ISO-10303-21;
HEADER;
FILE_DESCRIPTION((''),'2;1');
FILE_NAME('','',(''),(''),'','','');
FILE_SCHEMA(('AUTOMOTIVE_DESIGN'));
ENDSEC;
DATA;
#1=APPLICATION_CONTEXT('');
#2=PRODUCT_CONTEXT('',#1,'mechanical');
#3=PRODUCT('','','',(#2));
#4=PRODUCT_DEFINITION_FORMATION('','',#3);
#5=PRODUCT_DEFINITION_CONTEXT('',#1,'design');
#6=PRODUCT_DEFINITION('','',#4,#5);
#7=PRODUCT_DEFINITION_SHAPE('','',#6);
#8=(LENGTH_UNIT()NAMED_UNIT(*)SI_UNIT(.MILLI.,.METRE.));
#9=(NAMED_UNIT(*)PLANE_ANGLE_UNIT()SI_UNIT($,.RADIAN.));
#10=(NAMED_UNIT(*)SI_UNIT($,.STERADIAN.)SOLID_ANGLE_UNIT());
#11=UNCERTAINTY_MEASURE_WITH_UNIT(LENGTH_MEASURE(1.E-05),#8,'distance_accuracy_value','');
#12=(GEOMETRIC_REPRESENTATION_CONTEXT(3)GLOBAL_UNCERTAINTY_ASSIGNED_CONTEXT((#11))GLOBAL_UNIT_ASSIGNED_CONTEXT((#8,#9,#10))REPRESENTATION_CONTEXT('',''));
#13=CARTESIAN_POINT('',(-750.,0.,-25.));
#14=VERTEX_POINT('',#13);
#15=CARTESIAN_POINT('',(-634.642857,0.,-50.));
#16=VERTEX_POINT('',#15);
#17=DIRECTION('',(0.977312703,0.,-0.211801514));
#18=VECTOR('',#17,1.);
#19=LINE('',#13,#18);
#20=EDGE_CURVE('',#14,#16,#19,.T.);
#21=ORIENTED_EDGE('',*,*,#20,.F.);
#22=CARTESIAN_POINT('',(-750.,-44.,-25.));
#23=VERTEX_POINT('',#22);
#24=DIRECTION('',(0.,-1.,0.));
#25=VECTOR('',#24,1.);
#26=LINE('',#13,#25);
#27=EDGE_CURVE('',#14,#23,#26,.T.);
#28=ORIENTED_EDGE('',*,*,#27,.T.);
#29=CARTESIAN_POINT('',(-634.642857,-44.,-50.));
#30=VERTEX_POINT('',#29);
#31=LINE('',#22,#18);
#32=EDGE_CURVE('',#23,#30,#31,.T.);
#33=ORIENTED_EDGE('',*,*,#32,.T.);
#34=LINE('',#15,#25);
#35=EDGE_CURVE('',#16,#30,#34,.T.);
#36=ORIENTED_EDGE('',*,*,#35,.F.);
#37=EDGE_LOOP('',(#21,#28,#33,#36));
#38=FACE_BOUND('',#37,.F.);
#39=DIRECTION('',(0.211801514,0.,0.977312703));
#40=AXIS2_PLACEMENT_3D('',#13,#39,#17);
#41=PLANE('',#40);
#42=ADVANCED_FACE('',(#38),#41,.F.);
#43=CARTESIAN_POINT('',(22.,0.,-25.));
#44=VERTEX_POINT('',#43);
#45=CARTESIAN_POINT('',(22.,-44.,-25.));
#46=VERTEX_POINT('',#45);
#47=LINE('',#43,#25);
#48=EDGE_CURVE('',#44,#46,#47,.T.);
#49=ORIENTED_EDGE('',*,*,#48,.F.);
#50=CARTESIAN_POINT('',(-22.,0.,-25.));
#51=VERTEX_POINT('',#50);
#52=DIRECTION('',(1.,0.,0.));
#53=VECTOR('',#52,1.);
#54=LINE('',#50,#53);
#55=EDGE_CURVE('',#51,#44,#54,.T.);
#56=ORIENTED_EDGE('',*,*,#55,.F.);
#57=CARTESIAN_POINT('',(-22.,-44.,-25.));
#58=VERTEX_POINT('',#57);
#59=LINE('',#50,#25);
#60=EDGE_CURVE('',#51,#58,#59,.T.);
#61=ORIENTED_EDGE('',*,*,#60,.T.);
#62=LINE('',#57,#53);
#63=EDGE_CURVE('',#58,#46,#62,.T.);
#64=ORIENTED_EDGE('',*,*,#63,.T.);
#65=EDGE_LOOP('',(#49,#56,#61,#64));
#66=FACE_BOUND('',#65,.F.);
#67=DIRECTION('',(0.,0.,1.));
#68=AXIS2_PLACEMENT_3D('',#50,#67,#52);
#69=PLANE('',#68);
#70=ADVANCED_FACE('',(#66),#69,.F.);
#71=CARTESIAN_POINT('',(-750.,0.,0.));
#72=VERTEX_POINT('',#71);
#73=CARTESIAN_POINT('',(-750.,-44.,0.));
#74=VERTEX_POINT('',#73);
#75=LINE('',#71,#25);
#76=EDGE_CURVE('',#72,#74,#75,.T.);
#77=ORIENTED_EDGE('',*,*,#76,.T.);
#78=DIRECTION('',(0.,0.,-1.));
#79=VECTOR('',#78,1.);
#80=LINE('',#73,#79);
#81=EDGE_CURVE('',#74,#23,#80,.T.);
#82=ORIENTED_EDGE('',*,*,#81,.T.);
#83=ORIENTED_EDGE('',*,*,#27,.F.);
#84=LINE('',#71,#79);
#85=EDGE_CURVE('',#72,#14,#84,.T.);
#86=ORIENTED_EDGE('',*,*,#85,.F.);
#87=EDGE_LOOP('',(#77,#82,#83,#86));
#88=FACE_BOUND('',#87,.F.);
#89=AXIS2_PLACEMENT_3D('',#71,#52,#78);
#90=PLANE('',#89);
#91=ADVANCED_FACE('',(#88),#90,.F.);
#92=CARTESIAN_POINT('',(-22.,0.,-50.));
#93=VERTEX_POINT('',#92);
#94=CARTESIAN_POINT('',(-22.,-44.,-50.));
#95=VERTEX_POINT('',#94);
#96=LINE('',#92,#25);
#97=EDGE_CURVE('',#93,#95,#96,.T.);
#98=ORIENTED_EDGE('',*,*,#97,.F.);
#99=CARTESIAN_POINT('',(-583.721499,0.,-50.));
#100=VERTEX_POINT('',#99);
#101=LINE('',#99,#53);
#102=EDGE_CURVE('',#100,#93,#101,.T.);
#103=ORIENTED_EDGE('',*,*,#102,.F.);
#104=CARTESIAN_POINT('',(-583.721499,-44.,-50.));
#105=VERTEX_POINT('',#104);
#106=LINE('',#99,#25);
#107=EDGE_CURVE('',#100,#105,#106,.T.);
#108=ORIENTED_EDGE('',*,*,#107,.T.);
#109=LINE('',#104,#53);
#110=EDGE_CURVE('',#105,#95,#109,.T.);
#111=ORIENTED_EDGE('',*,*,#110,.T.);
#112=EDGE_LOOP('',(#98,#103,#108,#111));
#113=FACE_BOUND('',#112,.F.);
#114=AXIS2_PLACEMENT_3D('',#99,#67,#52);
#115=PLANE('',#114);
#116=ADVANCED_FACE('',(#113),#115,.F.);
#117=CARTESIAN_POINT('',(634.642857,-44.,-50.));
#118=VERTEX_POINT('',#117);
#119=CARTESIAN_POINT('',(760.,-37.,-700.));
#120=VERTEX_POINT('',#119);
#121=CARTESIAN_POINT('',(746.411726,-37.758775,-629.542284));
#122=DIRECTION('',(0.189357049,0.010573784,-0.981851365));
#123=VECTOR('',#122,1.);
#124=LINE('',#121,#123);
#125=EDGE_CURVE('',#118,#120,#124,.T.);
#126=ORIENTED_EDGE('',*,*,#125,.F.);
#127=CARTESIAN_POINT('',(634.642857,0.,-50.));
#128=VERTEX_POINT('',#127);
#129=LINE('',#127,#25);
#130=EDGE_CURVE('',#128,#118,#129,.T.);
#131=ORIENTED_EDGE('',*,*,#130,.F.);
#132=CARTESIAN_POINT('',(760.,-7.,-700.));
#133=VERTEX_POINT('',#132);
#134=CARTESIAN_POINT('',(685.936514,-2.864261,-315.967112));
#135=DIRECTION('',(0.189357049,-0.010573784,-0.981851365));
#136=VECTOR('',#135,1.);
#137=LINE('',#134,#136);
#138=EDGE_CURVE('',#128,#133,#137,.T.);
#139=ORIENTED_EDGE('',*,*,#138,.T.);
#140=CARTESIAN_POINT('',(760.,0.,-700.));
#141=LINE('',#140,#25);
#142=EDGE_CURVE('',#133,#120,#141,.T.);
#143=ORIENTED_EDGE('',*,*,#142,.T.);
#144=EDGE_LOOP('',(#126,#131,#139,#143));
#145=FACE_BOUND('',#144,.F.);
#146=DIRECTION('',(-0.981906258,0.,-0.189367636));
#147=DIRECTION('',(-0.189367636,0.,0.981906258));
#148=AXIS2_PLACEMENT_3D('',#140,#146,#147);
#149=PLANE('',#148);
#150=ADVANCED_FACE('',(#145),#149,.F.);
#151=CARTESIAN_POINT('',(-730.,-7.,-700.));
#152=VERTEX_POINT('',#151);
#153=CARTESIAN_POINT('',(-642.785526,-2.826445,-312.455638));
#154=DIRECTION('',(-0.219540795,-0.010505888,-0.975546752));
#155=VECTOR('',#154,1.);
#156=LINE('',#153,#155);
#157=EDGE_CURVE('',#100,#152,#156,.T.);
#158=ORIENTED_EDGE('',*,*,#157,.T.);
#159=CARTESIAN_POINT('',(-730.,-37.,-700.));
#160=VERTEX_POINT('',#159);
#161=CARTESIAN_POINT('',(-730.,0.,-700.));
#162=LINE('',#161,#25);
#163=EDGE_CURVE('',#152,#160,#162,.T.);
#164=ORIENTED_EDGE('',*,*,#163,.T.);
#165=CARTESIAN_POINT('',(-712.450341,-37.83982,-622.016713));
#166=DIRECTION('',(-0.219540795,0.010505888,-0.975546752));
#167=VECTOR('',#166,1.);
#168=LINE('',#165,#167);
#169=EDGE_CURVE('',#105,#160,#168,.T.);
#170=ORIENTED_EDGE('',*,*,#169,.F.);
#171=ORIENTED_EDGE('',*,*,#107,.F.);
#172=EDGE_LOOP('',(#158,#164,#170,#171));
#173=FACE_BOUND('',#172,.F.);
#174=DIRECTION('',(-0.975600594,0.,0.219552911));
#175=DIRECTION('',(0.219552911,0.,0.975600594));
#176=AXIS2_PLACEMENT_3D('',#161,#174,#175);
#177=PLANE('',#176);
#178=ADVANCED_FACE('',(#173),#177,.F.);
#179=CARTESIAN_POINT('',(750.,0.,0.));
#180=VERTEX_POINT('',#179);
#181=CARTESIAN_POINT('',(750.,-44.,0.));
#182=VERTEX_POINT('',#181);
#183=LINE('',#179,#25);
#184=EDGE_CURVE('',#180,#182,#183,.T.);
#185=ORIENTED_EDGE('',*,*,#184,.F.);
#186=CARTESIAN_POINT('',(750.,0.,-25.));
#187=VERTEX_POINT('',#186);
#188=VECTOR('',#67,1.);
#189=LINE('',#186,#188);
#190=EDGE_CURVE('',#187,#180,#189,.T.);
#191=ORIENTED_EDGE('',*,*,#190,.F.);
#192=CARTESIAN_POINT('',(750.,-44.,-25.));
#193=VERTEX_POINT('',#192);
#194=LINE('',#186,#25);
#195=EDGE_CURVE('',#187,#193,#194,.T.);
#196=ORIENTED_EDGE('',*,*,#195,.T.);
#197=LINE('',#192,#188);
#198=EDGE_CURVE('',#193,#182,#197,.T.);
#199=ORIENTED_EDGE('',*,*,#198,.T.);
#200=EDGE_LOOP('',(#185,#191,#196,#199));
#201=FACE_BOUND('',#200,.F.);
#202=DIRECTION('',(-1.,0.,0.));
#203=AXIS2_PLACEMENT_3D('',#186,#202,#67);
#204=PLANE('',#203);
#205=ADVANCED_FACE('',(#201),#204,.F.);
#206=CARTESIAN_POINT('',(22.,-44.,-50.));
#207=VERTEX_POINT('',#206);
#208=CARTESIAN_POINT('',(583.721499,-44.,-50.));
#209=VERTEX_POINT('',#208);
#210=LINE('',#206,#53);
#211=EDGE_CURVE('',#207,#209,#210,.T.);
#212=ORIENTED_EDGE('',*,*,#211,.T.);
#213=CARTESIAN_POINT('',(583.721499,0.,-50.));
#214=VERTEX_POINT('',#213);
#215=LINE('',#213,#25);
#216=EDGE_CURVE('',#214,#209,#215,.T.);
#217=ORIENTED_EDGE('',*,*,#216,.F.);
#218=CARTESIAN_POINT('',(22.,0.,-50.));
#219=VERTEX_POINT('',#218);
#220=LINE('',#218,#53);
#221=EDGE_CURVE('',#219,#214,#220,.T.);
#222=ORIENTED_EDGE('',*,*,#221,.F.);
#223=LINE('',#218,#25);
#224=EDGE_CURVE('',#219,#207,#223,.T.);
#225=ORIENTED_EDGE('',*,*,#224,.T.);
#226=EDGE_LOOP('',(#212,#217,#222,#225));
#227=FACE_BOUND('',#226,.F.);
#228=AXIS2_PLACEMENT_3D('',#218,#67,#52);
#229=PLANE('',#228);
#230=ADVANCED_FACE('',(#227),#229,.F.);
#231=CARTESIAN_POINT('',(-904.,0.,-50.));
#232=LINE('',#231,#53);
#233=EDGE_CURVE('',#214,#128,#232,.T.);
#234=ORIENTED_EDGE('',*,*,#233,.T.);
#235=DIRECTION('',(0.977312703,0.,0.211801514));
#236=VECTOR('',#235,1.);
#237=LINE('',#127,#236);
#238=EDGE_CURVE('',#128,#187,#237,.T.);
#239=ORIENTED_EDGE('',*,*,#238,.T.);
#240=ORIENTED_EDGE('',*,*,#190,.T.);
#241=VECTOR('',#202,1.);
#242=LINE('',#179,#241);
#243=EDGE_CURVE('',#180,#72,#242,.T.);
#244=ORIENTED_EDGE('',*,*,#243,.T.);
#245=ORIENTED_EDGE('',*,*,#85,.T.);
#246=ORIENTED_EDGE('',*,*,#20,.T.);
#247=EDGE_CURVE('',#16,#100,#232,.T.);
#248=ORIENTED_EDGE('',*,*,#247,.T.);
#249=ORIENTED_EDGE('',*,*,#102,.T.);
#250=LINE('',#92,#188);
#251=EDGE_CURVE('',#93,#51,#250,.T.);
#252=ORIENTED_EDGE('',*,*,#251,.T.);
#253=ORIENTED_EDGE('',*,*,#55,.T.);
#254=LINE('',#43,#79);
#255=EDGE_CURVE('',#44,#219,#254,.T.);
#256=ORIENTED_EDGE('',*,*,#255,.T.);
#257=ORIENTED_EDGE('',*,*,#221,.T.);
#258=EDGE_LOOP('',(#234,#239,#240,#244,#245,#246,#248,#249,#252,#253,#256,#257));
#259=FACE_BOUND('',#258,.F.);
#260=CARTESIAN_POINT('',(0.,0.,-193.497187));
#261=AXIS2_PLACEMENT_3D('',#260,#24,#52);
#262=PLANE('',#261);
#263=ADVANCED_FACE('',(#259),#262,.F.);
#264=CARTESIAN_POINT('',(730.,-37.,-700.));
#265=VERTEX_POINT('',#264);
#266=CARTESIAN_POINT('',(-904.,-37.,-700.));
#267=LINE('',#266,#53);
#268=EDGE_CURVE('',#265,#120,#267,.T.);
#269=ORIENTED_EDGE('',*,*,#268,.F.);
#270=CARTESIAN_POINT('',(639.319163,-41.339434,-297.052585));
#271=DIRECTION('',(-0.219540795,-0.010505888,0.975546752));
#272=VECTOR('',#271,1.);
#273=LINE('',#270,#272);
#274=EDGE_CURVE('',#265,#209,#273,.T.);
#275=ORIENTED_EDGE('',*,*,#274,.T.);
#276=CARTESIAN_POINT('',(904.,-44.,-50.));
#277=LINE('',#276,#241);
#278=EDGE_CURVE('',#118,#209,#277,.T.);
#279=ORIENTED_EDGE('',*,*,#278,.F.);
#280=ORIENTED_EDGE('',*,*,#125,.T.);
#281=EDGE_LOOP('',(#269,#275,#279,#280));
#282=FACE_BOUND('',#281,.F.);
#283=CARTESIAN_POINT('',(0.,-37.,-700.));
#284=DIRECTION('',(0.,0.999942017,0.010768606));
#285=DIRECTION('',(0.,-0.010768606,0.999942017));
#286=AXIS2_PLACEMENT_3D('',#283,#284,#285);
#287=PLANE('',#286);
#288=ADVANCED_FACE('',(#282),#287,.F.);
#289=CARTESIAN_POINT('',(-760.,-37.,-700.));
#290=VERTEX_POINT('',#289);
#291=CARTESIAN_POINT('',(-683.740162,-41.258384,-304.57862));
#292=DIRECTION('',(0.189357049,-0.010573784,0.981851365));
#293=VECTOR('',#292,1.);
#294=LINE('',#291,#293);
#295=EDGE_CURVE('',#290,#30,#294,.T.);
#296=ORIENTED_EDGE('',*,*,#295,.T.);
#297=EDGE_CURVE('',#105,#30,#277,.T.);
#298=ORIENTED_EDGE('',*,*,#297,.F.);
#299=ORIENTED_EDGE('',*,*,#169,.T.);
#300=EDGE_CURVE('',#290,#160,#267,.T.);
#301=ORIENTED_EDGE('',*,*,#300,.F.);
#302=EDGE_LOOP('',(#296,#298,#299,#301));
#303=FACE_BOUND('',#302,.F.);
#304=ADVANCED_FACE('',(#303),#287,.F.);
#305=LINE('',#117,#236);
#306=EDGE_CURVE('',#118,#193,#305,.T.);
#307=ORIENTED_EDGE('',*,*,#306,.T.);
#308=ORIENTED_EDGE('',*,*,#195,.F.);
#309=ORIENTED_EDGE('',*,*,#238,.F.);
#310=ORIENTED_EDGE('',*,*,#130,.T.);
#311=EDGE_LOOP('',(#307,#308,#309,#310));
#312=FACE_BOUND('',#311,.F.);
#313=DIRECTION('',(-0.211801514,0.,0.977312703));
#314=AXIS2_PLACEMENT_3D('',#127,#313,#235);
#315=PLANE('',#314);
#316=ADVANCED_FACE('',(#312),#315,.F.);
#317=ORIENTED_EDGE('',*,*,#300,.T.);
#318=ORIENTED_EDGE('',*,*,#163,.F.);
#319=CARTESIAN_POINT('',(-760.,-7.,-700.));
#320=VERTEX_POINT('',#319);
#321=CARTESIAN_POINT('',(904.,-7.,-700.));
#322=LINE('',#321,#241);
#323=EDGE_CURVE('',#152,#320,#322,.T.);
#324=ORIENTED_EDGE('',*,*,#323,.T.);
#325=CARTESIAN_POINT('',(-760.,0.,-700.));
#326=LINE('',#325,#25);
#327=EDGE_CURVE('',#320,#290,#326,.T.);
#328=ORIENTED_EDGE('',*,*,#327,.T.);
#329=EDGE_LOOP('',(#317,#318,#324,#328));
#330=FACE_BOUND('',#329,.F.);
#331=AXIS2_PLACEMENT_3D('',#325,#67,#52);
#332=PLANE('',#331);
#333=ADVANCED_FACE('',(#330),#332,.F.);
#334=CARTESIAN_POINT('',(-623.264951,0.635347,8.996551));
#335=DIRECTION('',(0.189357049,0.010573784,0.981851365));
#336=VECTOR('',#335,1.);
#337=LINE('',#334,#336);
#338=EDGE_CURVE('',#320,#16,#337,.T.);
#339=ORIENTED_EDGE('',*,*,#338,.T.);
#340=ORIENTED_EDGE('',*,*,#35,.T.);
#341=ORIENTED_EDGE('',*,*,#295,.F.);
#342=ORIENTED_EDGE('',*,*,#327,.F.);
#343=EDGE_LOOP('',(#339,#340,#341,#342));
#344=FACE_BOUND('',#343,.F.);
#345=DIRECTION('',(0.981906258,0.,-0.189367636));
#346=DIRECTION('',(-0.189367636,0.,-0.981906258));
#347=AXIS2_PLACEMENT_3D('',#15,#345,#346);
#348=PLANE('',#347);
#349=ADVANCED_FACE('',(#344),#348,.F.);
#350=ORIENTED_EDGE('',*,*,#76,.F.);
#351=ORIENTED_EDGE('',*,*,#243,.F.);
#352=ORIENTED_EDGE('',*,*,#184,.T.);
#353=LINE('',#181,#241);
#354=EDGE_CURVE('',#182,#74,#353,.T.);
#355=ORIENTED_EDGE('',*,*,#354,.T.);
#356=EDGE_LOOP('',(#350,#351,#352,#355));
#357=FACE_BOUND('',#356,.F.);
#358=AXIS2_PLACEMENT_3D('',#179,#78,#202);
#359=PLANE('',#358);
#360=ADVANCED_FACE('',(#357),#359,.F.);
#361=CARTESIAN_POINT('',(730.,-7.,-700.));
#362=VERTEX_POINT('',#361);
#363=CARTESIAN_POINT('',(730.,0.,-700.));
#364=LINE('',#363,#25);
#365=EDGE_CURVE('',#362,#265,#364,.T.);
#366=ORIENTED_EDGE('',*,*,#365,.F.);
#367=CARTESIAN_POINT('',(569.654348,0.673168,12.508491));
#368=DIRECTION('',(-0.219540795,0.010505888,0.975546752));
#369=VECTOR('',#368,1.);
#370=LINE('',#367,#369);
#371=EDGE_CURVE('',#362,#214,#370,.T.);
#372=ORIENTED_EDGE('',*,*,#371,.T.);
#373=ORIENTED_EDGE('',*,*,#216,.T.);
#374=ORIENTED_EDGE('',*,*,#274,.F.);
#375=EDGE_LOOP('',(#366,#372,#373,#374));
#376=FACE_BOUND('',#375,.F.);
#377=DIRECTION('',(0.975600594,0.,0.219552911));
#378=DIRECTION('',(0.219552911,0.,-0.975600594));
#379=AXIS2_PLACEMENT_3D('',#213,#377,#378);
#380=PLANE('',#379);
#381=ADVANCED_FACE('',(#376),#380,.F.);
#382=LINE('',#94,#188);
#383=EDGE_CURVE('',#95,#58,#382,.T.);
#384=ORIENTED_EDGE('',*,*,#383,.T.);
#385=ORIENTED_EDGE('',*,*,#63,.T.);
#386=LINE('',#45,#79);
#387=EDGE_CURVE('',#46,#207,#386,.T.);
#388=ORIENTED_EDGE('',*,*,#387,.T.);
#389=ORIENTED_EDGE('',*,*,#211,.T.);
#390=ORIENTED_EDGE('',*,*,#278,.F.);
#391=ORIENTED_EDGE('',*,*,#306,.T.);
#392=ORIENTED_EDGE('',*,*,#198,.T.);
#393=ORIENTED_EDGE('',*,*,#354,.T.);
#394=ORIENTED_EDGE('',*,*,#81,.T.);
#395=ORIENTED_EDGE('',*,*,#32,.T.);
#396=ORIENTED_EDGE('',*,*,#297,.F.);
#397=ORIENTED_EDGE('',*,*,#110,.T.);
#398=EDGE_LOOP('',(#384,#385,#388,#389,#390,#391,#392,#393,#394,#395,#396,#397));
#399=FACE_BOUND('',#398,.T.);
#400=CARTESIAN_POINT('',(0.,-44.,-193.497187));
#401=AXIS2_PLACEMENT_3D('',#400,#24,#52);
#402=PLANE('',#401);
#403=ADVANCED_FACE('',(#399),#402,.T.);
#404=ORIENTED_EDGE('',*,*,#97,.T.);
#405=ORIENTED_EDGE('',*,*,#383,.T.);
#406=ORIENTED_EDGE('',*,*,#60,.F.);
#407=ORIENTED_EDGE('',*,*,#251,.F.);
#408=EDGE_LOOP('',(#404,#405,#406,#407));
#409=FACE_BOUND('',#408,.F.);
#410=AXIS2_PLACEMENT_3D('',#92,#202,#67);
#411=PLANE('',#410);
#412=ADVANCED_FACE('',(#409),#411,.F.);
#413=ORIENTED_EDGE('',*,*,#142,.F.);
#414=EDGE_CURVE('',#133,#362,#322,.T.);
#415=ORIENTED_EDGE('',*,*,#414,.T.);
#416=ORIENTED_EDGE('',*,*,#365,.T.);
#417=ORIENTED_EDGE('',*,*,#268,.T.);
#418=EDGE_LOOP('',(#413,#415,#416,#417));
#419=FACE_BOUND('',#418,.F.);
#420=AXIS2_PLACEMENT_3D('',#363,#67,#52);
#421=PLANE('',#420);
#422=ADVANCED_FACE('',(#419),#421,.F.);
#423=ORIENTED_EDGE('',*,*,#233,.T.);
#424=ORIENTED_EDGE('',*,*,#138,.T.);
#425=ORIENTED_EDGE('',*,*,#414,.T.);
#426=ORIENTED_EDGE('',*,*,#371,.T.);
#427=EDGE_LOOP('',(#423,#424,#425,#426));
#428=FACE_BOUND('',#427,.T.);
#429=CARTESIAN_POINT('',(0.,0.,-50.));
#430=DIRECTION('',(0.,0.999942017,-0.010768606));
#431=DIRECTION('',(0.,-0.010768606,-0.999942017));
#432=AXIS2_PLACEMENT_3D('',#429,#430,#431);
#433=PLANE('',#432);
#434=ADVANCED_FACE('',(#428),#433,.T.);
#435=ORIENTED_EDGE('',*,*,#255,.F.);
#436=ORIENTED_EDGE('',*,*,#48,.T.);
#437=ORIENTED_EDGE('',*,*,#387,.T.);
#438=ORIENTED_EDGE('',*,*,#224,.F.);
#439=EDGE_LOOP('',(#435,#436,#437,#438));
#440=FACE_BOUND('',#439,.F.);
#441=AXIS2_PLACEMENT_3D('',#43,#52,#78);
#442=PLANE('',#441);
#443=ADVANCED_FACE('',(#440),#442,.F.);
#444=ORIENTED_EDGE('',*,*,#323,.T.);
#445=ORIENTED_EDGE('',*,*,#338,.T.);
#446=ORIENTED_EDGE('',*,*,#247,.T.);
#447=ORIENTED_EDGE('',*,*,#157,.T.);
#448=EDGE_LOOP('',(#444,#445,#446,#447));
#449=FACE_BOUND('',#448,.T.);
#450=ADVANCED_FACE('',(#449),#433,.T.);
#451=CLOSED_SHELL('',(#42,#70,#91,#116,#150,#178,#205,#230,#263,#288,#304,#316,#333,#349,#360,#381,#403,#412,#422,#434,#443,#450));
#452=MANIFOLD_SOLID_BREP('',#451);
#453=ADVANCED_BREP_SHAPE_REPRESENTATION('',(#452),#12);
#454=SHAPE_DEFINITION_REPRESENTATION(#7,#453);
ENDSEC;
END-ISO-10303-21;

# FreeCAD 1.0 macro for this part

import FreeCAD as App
import Part
import Sketcher

V = App.Vector
Q = App.Units.Quantity


def add_polygon(sketch, points):
    """Adds a closed chain of lines whose ends are joined by coincident constraints."""
    first, n = sketch.GeometryCount, len(points)
    for a, b in zip(points, points[1:] + points[:1]):
        sketch.addGeometry(Part.LineSegment(App.Vector(*a, 0), App.Vector(*b, 0)), False)
    for i in range(n):
        sketch.addConstraint(Sketcher.Constraint("Coincident", first + i, 2, first + (i + 1) % n, 1))

doc = App.newDocument("Part")
params = doc.addObject("Spreadsheet::Sheet", "Params")
for row, (alias, value) in enumerate([
    ("sketch1_width", "30 mm"),
    ("sketch1_width2", "44 mm"),
    ("sketch1_width3", "1500 mm"),
    ("sketch1_height", "25 mm"),
    ("pad1_length", "44 mm"),
    ("sketch2_width", "7 mm"),
    ("sketch2_height", "650 mm"),
    ("pocket1_length", "1808 mm"),
], start=1):
    params.set(f"A{row}", alias)
    params.set(f"B{row}", "=" + value)
    params.setAlias(f"B{row}", alias)

body = doc.addObject("PartDesign::Body", "Body")

sketch1 = doc.addObject("Sketcher::SketchObject", "Sketch")
body.addObject(sketch1)
sketch1.AttachmentSupport = (doc.XZ_Plane, [""])
sketch1.MapMode = "FlatFace"
add_polygon(sketch1, [(-750, 0), (-750, -25), (-635, -50), (-760, -700), (-730, -700), (-584, -50), (-22, -50), (-22, -25), (22, -25), (22, -50), (584, -50), (730, -700), (760, -700), (635, -50), (750, -25), (750, 0)])
sketch1.addConstraint(Sketcher.Constraint("Vertical", 0))
sketch1.addConstraint(Sketcher.Constraint("Horizontal", 3))
sketch1.addConstraint(Sketcher.Constraint("Horizontal", 5))
sketch1.addConstraint(Sketcher.Constraint("Vertical", 6))
sketch1.addConstraint(Sketcher.Constraint("Horizontal", 7))
sketch1.addConstraint(Sketcher.Constraint("Vertical", 8))
sketch1.addConstraint(Sketcher.Constraint("Horizontal", 9))
sketch1.addConstraint(Sketcher.Constraint("Horizontal", 11))
sketch1.addConstraint(Sketcher.Constraint("Vertical", 14))
sketch1.addConstraint(Sketcher.Constraint("Horizontal", 15))
sketch1.addConstraint(Sketcher.Constraint("Symmetric", 14, 2, 15, 2, -1, 1))
sketch1.addConstraint(Sketcher.Constraint("Symmetric", 5, 2, 8, 2, -2))
sketch1.addConstraint(Sketcher.Constraint("Symmetric", 3, 2, 10, 2, -2))
sketch1.addConstraint(Sketcher.Constraint("Symmetric", 1, 2, 12, 2, -2))
sketch1.addConstraint(Sketcher.Constraint("Horizontal", 1, 2, 4, 2))
sketch1.addConstraint(Sketcher.Constraint("Horizontal", 0, 2, 6, 2))
sketch1.addConstraint(Sketcher.Constraint("Horizontal", 7, 2, 13, 2))
sketch1.addConstraint(Sketcher.Constraint("Equal", 5, 9))
sketch1.addConstraint(Sketcher.Constraint("Equal", 3, 11))
sketch1.addConstraint(Sketcher.Constraint("Equal", 0, 6))
sketch1.addConstraint(Sketcher.Constraint("DistanceX", 3, 1, 3, 2, Q("30 mm")))
sketch1.addConstraint(Sketcher.Constraint("DistanceX", 7, 1, 7, 2, Q("44 mm")))
sketch1.addConstraint(Sketcher.Constraint("DistanceX", 15, 2, 15, 1, Q("1500 mm")))
sketch1.addConstraint(Sketcher.Constraint("DistanceY", 0, 2, 0, 1, Q("25 mm")))
sketch1.addConstraint(Sketcher.Constraint("DistanceX", 2, 2, -1, 1, Q("760 mm")))
sketch1.addConstraint(Sketcher.Constraint("DistanceY", 2, 2, -1, 1, Q("700 mm")))
sketch1.addConstraint(Sketcher.Constraint("DistanceX", 5, 1, 5, 2, Q("561.721499 mm")))
sketch1.addConstraint(Sketcher.Constraint("Distance", 1, Q("118.035039 mm")))
sketch1.setExpression("Constraints[36]", "Params.sketch1_width")
sketch1.setExpression("Constraints[37]", "Params.sketch1_width2")
sketch1.setExpression("Constraints[38]", "Params.sketch1_width3")
sketch1.setExpression("Constraints[39]", "Params.sketch1_height")
pad1 = doc.addObject("PartDesign::Pad", "Pad")
body.addObject(pad1)
pad1.Profile = sketch1
pad1.setExpression("Length", "Params.pad1_length")

sketch2 = doc.addObject("Sketcher::SketchObject", "Sketch001")
body.addObject(sketch2)
sketch2.AttachmentSupport = (doc.YZ_Plane, [""])
sketch2.MapMode = "FlatFace"
add_polygon(sketch2, [(0, -700), (0, -50), (-7, -700)])
add_polygon(sketch2, [(-44, -700), (-37, -700), (-44, -50)])
sketch2.addConstraint(Sketcher.Constraint("Vertical", 0))
sketch2.addConstraint(Sketcher.Constraint("Horizontal", 2))
sketch2.addConstraint(Sketcher.Constraint("Horizontal", 3))
sketch2.addConstraint(Sketcher.Constraint("Vertical", 5))
sketch2.addConstraint(Sketcher.Constraint("PointOnObject", 0, 2, -2))
sketch2.addConstraint(Sketcher.Constraint("Horizontal", 2, 2, 3, 2))
sketch2.addConstraint(Sketcher.Constraint("Horizontal", 0, 2, 4, 2))
sketch2.addConstraint(Sketcher.Constraint("Equal", 2, 3))
sketch2.addConstraint(Sketcher.Constraint("DistanceX", 2, 1, 2, 2, Q("7 mm")))
sketch2.addConstraint(Sketcher.Constraint("DistanceY", 0, 1, 0, 2, Q("650 mm")))
sketch2.addConstraint(Sketcher.Constraint("DistanceY", 0, 2, -1, 1, Q("50 mm")))
sketch2.addConstraint(Sketcher.Constraint("DistanceX", 3, 2, -1, 1, Q("37 mm")))
sketch2.setExpression("Constraints[14]", "Params.sketch2_width")
sketch2.setExpression("Constraints[15]", "Params.sketch2_height")
pocket1 = doc.addObject("PartDesign::Pocket", "Pocket")
body.addObject(pocket1)
pocket1.Profile = sketch2
pocket1.setExpression("Length", "Params.pocket1_length")
pocket1.Midplane = True

doc.recompute()
